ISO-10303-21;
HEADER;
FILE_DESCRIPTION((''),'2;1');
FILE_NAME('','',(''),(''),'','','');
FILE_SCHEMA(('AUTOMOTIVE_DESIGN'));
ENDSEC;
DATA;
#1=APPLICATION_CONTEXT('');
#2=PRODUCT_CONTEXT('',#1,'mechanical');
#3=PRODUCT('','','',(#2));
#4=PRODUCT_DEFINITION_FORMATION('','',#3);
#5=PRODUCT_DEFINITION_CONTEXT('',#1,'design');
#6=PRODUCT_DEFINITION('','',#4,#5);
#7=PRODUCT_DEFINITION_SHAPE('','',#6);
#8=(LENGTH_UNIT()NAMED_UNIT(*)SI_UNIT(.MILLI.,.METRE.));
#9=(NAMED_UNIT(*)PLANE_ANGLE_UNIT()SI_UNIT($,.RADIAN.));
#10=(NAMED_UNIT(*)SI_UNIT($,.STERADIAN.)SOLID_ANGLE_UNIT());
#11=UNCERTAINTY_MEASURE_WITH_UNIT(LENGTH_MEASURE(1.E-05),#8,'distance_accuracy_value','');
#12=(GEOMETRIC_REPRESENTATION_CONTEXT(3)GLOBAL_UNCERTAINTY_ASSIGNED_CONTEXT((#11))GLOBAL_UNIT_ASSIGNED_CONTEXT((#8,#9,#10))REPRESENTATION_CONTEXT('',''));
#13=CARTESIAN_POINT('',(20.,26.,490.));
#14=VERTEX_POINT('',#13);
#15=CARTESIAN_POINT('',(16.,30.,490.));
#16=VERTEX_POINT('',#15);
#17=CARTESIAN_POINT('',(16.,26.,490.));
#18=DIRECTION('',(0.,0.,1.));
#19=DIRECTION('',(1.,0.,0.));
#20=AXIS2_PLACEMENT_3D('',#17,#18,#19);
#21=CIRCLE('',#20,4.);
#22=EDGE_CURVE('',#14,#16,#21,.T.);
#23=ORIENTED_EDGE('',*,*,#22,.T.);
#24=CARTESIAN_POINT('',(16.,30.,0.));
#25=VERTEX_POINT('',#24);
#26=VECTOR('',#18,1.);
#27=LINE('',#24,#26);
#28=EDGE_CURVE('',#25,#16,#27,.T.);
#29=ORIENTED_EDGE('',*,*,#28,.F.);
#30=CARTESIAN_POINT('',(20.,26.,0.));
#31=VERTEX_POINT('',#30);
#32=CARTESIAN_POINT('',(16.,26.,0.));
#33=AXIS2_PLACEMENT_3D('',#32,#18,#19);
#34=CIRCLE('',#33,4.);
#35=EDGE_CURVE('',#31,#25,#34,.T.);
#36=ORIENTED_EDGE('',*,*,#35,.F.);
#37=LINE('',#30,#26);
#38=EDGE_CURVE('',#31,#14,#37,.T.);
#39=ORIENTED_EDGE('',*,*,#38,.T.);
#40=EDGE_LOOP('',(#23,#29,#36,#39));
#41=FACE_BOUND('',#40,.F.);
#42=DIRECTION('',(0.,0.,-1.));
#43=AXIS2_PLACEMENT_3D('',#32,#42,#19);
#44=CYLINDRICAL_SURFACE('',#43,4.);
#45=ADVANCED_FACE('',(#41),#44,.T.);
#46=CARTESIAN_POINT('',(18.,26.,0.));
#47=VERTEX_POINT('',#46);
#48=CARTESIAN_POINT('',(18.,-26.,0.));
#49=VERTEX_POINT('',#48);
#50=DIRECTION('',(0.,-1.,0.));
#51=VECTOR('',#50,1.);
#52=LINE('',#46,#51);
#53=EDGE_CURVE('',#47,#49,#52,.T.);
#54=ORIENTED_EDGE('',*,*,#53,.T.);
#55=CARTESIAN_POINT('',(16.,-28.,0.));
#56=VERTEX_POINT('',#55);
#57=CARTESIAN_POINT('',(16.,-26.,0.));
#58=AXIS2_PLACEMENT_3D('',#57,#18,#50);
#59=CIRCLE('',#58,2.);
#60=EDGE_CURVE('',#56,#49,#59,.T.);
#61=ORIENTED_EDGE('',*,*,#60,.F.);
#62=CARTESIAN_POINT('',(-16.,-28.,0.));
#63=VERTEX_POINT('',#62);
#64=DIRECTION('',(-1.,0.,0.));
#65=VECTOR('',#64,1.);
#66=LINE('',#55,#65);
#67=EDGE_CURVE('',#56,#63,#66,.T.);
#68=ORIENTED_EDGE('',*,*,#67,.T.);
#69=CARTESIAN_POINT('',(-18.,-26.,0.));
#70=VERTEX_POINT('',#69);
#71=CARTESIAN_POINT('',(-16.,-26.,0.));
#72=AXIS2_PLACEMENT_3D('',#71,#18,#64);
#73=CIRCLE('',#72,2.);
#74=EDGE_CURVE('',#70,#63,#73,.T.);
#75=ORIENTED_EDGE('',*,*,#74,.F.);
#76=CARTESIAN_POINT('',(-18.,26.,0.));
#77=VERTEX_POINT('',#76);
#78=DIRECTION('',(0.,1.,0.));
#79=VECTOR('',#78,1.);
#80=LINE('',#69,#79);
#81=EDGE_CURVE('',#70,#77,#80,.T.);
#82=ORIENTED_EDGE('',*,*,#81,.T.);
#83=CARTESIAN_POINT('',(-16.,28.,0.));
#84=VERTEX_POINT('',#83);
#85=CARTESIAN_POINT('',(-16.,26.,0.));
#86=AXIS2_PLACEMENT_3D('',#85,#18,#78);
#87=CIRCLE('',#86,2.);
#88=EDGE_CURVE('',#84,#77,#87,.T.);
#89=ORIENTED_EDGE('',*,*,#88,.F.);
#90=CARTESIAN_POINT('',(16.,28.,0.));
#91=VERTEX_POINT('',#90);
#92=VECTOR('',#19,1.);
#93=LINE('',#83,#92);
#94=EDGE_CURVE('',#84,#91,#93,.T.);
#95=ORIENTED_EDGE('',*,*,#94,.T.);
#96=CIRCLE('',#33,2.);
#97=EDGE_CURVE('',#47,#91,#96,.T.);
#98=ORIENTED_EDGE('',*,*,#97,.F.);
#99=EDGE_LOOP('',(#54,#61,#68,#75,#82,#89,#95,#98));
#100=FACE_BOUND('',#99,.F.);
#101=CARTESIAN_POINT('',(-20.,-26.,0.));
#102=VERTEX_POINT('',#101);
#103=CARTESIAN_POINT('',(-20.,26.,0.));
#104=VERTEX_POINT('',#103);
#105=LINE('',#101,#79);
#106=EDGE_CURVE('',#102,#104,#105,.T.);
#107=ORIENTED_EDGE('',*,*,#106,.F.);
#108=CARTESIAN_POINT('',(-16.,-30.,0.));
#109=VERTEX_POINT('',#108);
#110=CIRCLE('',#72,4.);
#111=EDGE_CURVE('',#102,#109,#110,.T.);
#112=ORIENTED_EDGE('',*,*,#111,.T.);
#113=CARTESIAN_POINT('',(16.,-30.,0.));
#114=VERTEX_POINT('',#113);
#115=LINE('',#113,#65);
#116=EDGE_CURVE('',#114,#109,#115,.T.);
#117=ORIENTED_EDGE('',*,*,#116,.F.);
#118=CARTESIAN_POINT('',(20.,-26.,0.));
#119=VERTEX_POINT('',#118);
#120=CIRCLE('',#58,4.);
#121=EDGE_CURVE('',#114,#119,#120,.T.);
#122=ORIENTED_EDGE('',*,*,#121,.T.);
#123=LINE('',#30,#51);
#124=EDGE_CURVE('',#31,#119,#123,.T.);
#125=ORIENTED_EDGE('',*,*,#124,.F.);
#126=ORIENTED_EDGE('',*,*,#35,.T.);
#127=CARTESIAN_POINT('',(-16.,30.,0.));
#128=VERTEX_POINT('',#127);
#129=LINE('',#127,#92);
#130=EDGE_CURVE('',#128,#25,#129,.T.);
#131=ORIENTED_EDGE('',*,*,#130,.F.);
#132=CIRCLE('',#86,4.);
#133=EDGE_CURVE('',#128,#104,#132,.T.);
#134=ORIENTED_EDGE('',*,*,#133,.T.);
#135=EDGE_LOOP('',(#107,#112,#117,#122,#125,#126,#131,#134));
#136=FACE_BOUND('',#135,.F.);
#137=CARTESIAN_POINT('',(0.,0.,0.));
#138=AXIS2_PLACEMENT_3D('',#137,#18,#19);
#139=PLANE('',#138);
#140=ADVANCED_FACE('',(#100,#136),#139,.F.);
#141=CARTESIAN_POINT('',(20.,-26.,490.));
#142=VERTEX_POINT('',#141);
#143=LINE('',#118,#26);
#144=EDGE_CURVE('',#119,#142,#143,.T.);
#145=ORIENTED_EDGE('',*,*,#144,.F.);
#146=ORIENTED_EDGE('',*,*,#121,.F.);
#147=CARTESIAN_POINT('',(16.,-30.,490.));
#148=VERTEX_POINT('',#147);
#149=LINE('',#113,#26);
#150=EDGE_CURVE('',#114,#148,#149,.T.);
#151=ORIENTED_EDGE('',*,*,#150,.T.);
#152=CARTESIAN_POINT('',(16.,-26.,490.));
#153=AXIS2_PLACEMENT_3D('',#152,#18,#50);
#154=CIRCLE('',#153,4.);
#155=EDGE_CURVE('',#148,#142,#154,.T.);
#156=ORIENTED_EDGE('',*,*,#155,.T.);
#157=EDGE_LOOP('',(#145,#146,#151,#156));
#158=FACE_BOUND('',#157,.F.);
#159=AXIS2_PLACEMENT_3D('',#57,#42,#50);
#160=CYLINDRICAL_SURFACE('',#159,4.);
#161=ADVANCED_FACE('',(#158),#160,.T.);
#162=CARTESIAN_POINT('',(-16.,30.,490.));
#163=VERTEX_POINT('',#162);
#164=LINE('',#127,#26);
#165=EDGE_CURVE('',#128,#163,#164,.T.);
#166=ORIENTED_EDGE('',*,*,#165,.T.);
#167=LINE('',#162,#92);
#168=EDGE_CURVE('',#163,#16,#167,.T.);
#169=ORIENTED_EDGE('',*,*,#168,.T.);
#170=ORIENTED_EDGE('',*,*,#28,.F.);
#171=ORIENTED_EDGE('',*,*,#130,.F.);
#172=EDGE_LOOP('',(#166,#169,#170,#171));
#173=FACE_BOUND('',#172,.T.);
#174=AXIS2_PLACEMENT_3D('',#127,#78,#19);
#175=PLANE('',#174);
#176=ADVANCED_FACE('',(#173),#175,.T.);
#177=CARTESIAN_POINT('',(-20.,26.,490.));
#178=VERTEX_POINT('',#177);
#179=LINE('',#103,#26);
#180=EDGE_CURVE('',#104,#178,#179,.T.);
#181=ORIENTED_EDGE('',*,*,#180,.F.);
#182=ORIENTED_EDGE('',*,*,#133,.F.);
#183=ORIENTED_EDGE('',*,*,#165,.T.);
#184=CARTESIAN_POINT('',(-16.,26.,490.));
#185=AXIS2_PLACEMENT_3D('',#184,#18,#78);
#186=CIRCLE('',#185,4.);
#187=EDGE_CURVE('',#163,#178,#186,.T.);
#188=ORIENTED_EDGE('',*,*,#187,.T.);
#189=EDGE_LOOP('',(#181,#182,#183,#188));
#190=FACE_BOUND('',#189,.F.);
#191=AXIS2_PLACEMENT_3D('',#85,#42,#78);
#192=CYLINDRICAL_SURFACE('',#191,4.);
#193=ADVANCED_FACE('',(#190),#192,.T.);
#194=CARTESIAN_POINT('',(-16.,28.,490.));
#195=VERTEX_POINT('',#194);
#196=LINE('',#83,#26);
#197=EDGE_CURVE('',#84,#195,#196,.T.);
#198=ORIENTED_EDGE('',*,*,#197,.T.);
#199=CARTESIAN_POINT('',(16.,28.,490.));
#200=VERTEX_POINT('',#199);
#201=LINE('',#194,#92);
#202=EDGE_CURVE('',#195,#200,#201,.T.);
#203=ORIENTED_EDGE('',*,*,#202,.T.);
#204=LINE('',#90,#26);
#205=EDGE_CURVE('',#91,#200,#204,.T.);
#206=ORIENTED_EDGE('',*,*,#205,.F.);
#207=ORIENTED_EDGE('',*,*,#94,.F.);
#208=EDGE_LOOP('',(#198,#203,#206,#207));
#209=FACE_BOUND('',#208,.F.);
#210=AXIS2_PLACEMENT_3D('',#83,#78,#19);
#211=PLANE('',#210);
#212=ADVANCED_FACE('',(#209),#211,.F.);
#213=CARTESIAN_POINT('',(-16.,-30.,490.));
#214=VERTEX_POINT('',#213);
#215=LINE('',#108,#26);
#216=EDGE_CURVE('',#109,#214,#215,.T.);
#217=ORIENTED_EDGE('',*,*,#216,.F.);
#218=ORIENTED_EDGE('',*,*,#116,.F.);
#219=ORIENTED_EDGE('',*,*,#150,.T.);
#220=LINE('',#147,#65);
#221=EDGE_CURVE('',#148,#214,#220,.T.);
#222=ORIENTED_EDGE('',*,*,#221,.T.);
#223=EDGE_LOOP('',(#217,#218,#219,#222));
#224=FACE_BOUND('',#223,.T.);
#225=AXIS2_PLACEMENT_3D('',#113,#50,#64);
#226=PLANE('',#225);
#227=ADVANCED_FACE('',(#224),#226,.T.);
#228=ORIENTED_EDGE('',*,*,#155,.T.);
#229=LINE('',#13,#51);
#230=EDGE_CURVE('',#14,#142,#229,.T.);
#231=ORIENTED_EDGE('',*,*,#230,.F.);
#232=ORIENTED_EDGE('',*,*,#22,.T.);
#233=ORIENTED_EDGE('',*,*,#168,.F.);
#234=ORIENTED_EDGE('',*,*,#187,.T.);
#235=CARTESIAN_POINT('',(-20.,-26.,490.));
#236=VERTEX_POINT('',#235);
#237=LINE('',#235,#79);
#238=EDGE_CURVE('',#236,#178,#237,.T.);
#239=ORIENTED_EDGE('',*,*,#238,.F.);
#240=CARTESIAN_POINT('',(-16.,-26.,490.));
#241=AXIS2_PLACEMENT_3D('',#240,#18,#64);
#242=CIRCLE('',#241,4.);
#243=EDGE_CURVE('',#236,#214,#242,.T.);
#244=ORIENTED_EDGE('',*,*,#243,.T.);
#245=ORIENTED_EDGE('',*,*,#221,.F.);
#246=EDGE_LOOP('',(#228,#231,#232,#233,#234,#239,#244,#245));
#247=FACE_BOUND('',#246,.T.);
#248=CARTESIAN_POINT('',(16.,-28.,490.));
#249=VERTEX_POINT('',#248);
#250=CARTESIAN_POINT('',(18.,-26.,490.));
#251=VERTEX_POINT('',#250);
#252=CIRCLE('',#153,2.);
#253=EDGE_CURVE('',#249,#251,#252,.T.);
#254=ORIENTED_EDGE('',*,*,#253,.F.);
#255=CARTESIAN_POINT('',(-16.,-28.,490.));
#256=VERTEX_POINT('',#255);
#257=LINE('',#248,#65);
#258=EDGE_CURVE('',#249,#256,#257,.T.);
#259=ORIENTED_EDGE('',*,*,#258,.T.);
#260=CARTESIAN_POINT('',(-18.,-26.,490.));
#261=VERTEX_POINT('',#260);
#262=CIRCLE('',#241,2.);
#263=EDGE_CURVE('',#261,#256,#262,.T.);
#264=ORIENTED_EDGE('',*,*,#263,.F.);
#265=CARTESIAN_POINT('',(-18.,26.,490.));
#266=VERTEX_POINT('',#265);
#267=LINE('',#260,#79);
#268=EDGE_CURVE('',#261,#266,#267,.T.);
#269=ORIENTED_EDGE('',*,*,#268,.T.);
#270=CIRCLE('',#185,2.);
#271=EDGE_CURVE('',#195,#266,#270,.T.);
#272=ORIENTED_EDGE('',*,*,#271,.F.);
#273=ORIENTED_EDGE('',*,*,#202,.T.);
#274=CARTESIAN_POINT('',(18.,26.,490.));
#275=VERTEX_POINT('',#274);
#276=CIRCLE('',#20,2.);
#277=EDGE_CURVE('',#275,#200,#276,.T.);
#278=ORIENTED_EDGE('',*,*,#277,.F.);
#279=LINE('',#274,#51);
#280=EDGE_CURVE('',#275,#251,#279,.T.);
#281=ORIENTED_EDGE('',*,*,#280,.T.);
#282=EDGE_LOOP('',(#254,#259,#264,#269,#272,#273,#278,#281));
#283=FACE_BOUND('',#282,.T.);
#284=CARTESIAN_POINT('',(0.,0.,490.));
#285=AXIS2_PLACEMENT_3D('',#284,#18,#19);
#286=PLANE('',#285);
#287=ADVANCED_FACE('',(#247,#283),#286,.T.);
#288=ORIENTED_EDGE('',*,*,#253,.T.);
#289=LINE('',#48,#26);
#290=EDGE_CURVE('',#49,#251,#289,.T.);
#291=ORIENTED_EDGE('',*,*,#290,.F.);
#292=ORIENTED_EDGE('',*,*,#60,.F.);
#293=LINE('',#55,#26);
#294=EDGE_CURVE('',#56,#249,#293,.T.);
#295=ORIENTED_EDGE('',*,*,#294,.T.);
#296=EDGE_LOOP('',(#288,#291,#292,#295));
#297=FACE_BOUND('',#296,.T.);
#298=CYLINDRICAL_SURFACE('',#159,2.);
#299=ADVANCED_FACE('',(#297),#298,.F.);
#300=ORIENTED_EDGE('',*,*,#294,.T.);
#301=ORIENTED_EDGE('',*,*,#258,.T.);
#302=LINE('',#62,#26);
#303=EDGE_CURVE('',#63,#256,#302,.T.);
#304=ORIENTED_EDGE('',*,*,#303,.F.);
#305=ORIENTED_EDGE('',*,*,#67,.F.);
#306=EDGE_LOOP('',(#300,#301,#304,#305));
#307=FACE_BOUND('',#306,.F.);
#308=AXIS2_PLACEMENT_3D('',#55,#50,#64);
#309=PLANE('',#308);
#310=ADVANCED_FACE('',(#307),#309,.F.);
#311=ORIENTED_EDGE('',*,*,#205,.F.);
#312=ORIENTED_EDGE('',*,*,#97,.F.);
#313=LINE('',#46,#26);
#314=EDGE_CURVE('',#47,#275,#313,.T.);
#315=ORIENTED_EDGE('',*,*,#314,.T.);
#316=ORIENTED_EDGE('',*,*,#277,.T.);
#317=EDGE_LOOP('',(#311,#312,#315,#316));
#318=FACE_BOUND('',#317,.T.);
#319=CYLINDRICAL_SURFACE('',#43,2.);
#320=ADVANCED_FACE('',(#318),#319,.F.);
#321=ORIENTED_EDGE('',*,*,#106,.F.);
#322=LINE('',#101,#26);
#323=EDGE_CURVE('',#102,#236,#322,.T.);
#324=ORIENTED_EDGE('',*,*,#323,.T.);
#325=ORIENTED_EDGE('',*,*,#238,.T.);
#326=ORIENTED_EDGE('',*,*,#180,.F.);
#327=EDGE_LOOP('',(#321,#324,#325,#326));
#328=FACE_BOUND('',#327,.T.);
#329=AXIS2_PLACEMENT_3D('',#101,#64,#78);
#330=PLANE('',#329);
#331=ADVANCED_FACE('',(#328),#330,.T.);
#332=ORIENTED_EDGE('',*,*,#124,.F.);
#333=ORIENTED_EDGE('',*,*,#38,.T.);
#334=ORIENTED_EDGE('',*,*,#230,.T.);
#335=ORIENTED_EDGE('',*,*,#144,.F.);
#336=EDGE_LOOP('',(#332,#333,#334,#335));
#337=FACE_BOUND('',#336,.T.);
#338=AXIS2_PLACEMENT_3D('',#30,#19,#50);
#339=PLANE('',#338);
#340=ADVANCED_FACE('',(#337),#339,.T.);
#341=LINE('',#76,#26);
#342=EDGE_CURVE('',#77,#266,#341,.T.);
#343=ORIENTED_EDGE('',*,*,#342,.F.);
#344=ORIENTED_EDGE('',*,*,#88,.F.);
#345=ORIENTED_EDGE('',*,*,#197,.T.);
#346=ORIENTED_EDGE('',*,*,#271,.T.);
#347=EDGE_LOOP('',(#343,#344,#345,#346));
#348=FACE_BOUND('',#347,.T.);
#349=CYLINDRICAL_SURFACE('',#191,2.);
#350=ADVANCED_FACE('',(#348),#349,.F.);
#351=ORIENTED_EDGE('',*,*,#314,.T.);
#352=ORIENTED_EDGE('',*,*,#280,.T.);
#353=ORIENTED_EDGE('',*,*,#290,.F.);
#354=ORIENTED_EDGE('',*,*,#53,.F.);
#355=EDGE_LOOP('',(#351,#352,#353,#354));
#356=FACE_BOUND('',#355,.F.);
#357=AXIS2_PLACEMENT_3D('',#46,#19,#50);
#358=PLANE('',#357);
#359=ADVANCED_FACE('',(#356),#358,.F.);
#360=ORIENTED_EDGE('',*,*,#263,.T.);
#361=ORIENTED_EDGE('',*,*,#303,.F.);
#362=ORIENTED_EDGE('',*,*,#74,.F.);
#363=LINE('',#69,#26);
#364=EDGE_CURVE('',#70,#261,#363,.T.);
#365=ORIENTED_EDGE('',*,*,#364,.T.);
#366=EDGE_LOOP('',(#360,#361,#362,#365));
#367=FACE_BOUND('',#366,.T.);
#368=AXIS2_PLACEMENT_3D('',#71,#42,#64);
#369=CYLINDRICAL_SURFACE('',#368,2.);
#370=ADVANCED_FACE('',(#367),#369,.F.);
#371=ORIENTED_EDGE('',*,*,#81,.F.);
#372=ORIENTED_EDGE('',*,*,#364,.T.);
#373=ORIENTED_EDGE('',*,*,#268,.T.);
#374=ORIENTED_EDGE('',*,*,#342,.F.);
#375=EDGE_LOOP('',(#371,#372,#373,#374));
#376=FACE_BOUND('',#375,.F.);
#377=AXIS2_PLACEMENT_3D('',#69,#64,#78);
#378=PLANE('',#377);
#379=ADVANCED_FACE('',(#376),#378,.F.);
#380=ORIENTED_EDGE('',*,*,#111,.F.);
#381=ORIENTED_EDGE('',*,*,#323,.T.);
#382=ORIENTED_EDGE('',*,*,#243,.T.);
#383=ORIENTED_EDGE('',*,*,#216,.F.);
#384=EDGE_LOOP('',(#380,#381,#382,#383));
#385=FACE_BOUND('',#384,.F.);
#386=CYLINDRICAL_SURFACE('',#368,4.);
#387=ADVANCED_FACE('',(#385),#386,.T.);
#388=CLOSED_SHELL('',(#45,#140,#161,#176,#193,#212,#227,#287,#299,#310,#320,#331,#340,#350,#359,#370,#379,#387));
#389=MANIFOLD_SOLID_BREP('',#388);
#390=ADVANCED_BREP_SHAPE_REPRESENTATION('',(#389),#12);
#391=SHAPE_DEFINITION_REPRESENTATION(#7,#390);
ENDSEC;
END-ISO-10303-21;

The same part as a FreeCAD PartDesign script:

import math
import FreeCAD as App
import Part
import Sketcher

V = App.Vector

doc = App.newDocument("Part")
body = doc.addObject("PartDesign::Body", "Body")

# Sketch on XY plane
sketch1 = body.newObject("Sketcher::SketchObject", "Sketch")
sketch1.AttachmentSupport = (doc.getObject("XY_Plane"), [""])
sketch1.MapMode = "FlatFace"
sketch1.addGeometry([
    Part.LineSegment(V(-20, 26, 0), V(-20, -26, 0)),  # 0
    Part.ArcOfCircle(Part.Circle(V(-16, -26, 0), V(0, 0, 1), 4), math.radians(180), math.radians(270)),  # 1
    Part.LineSegment(V(-16, -30, 0), V(16, -30, 0)),  # 2
    Part.ArcOfCircle(Part.Circle(V(16, -26, 0), V(0, 0, 1), 4), math.radians(-90), math.radians(0)),  # 3
    Part.LineSegment(V(20, -26, 0), V(20, 26, 0)),  # 4
    Part.ArcOfCircle(Part.Circle(V(16, 26, 0), V(0, 0, 1), 4), math.radians(0), math.radians(90)),  # 5
    Part.LineSegment(V(16, 30, 0), V(-16, 30, 0)),  # 6
    Part.ArcOfCircle(Part.Circle(V(-16, 26, 0), V(0, 0, 1), 4), math.radians(90), math.radians(180)),  # 7
    Part.ArcOfCircle(Part.Circle(V(-16, 26, 0), V(0, 0, 1), 2), math.radians(90), math.radians(180)),  # 8
    Part.LineSegment(V(-16, 28, 0), V(16, 28, 0)),  # 9
    Part.ArcOfCircle(Part.Circle(V(16, 26, 0), V(0, 0, 1), 2), math.radians(0), math.radians(90)),  # 10
    Part.LineSegment(V(18, 26, 0), V(18, -26, 0)),  # 11
    Part.ArcOfCircle(Part.Circle(V(16, -26, 0), V(0, 0, 1), 2), math.radians(-90), math.radians(0)),  # 12
    Part.LineSegment(V(16, -28, 0), V(-16, -28, 0)),  # 13
    Part.ArcOfCircle(Part.Circle(V(-16, -26, 0), V(0, 0, 1), 2), math.radians(180), math.radians(270)),  # 14
    Part.LineSegment(V(-18, -26, 0), V(-18, 26, 0)),  # 15
], False)
sketch1.addConstraint([
    Sketcher.Constraint("Tangent", 0, 2, 1, 1),
    Sketcher.Constraint("Tangent", 1, 2, 2, 1),
    Sketcher.Constraint("Tangent", 2, 2, 3, 1),
    Sketcher.Constraint("Tangent", 3, 2, 4, 1),
    Sketcher.Constraint("Tangent", 4, 2, 5, 1),
    Sketcher.Constraint("Tangent", 5, 2, 6, 1),
    Sketcher.Constraint("Tangent", 6, 2, 7, 1),
    Sketcher.Constraint("Tangent", 7, 2, 0, 1),
    Sketcher.Constraint("Tangent", 8, 1, 9, 1),
    Sketcher.Constraint("Tangent", 9, 2, 10, 2),
    Sketcher.Constraint("Tangent", 10, 1, 11, 1),
    Sketcher.Constraint("Tangent", 11, 2, 12, 2),
    Sketcher.Constraint("Tangent", 12, 1, 13, 1),
    Sketcher.Constraint("Tangent", 13, 2, 14, 2),
    Sketcher.Constraint("Tangent", 14, 1, 15, 1),
    Sketcher.Constraint("Tangent", 15, 2, 8, 2),
    Sketcher.Constraint("Vertical", 0),
    Sketcher.Constraint("Horizontal", 2),
    Sketcher.Constraint("Vertical", 4),
    Sketcher.Constraint("Horizontal", 6),
    Sketcher.Constraint("Horizontal", 9),
    Sketcher.Constraint("Vertical", 11),
    Sketcher.Constraint("Horizontal", 13),
    Sketcher.Constraint("Vertical", 15),
    Sketcher.Constraint("Coincident", 8, 3, 7, 3),
    Sketcher.Constraint("Coincident", 10, 3, 5, 3),
    Sketcher.Constraint("Coincident", 12, 3, 3, 3),
    Sketcher.Constraint("Equal", 1, 3),
    Sketcher.Constraint("Equal", 3, 5),
    Sketcher.Constraint("Equal", 5, 7),
    Sketcher.Constraint("Equal", 12, 14),
    Sketcher.Constraint("Symmetric", 1, 3, 5, 3, -1, 1),
    Sketcher.Constraint("Radius", 1, 4.0),
    Sketcher.Constraint("Radius", 8, 2.0),
    Sketcher.Constraint("DistanceX", 0, 2, -1, 1, 20.0),
    Sketcher.Constraint("DistanceY", 1, 2, -1, 1, 30.0),
])
pad1 = body.newObject("PartDesign::Pad", "Pad")
pad1.Profile = sketch1
pad1.Length = 490

doc.recompute()
